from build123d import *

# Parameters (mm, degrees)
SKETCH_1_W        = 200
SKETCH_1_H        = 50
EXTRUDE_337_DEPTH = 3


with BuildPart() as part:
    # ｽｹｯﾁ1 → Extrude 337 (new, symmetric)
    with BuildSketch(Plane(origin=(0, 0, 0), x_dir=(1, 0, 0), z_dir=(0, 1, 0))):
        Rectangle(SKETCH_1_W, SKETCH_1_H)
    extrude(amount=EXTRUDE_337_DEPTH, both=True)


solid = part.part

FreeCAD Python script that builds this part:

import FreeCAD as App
import Part
import Sketcher
Q = App.Units.Quantity

doc = App.newDocument("Part")
params = doc.addObject("Spreadsheet::Sheet", "Params")
for row, (alias, value) in enumerate([
    ("sketch1_width", "200 mm"),
    ("sketch1_height", "50 mm"),
    ("pad1_length", "6 mm"),
], start=1):
    params.set(f"A{row}", alias)
    params.set(f"B{row}", "=" + value)
    params.setAlias(f"B{row}", alias)

body = doc.addObject("PartDesign::Body", "Body")

sketch1 = doc.addObject("Sketcher::SketchObject", "Sketch")
body.addObject(sketch1)
sketch1.AttachmentSupport = (doc.XZ_Plane, [""])
sketch1.MapMode = "FlatFace"
sketch1.addGeometry([
    Part.LineSegment(App.Vector(-100, -25, 0), App.Vector(-100, 25, 0)),
    Part.LineSegment(App.Vector(-100, 25, 0), App.Vector(100, 25, 0)),
    Part.LineSegment(App.Vector(100, 25, 0), App.Vector(100, -25, 0)),
    Part.LineSegment(App.Vector(100, -25, 0), App.Vector(-100, -25, 0)),
], False)
sketch1.addConstraint([
    Sketcher.Constraint("Coincident", 0, 2, 1, 1),
    Sketcher.Constraint("Coincident", 1, 2, 2, 1),
    Sketcher.Constraint("Coincident", 2, 2, 3, 1),
    Sketcher.Constraint("Coincident", 3, 2, 0, 1),
    Sketcher.Constraint("Vertical", 0),
    Sketcher.Constraint("Horizontal", 1),
    Sketcher.Constraint("Vertical", 2),
    Sketcher.Constraint("Horizontal", 3),
    Sketcher.Constraint("Symmetric", 0, 2, 2, 2, -1, 1),
    Sketcher.Constraint("DistanceX", 1, 1, 1, 2, Q("200 mm")),
    Sketcher.Constraint("DistanceY", 0, 1, 0, 2, Q("50 mm")),
])
sketch1.setExpression("Constraints[9]", "Params.sketch1_width")
sketch1.setExpression("Constraints[10]", "Params.sketch1_height")
pad1 = doc.addObject("PartDesign::Pad", "Pad")
body.addObject(pad1)
pad1.Profile = sketch1
pad1.setExpression("Length", "Params.pad1_length")
pad1.Midplane = True

doc.recompute()
